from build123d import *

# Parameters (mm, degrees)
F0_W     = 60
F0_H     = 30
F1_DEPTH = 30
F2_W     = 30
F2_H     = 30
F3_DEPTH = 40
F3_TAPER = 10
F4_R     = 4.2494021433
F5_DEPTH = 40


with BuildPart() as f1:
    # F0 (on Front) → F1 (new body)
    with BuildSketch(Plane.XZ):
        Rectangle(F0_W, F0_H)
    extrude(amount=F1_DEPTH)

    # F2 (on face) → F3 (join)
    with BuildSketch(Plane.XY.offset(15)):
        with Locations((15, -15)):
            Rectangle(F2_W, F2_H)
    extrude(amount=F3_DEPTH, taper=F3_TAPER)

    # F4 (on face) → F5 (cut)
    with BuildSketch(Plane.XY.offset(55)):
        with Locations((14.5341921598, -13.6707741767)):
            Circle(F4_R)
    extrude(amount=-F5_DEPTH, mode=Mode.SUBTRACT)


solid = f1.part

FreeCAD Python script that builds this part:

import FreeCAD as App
import Part
import Sketcher

V = App.Vector
Q = App.Units.Quantity

doc = App.newDocument("Part")
params = doc.addObject("Spreadsheet::Sheet", "Params")
for row, (alias, value) in enumerate([
    ("sketch1_width", "60 mm"),
    ("sketch1_height", "30 mm"),
    ("pad1_length", "30 mm"),
    ("sketch2_width", "30 mm"),
    ("pad2_length", "40 mm"),
    ("pad2_taper", "-10 deg"),
    ("pocket1_length", "40 mm"),
], start=1):
    params.set(f"A{row}", alias)
    params.set(f"B{row}", "=" + value)
    params.setAlias(f"B{row}", alias)

body = doc.addObject("PartDesign::Body", "Body")

# Sketch on XZ plane
sketch1 = body.newObject("Sketcher::SketchObject", "Sketch")
sketch1.AttachmentSupport = (doc.getObject("XZ_Plane"), [""])
sketch1.MapMode = "FlatFace"
sketch1.addGeometry([
    Part.LineSegment(V(-30, 15, 0), V(-30, -15, 0)),
    Part.LineSegment(V(-30, -15, 0), V(30, -15, 0)),
    Part.LineSegment(V(30, -15, 0), V(30, 15, 0)),
    Part.LineSegment(V(30, 15, 0), V(-30, 15, 0)),
], False)
sketch1.addConstraint([
    Sketcher.Constraint("Coincident", 0, 2, 1, 1),
    Sketcher.Constraint("Coincident", 1, 2, 2, 1),
    Sketcher.Constraint("Coincident", 2, 2, 3, 1),
    Sketcher.Constraint("Coincident", 3, 2, 0, 1),
    Sketcher.Constraint("Vertical", 0),
    Sketcher.Constraint("Horizontal", 1),
    Sketcher.Constraint("Vertical", 2),
    Sketcher.Constraint("Horizontal", 3),
    Sketcher.Constraint("Symmetric", 0, 2, 2, 2, -1, 1),
    Sketcher.Constraint("DistanceX", 1, 1, 1, 2, Q("60 mm")),
    Sketcher.Constraint("DistanceY", 0, 2, 0, 1, Q("30 mm")),
])
sketch1.setExpression("Constraints[9]", "Params.sketch1_width")
sketch1.setExpression("Constraints[10]", "Params.sketch1_height")
pad1 = body.newObject("PartDesign::Pad", "Pad")
pad1.Profile = sketch1
pad1.setExpression("Length", "Params.pad1_length")

# Sketch on XY plane
sketch2 = body.newObject("Sketcher::SketchObject", "Sketch001")
sketch2.AttachmentSupport = (doc.getObject("XY_Plane"), [""])
sketch2.MapMode = "FlatFace"
sketch2.AttachmentOffset = App.Placement(V(0, 0, 15), App.Rotation())
sketch2.addGeometry([
    Part.LineSegment(V(0, 0, 0), V(0, -30, 0)),
    Part.LineSegment(V(0, -30, 0), V(30, -30, 0)),
    Part.LineSegment(V(30, -30, 0), V(30, 0, 0)),
    Part.LineSegment(V(30, 0, 0), V(0, 0, 0)),
], False)
sketch2.addConstraint([
    Sketcher.Constraint("Coincident", 0, 2, 1, 1),
    Sketcher.Constraint("Coincident", 1, 2, 2, 1),
    Sketcher.Constraint("Coincident", 2, 2, 3, 1),
    Sketcher.Constraint("Coincident", 3, 2, 0, 1),
    Sketcher.Constraint("Vertical", 0),
    Sketcher.Constraint("Horizontal", 1),
    Sketcher.Constraint("Vertical", 2),
    Sketcher.Constraint("Horizontal", 3),
    Sketcher.Constraint("Coincident", 3, 2, -1, 1),
    Sketcher.Constraint("Equal", 3, 0),
    Sketcher.Constraint("DistanceX", 1, 1, 1, 2, Q("30 mm")),
])
sketch2.setExpression("Constraints[10]", "Params.sketch2_width")
pad2 = body.newObject("PartDesign::Pad", "Pad001")
pad2.Profile = sketch2
pad2.setExpression("Length", "Params.pad2_length")
pad2.setExpression("TaperAngle", "Params.pad2_taper")

# Sketch on XY plane
sketch3 = body.newObject("Sketcher::SketchObject", "Sketch002")
sketch3.AttachmentSupport = (doc.getObject("XY_Plane"), [""])
sketch3.MapMode = "FlatFace"
sketch3.AttachmentOffset = App.Placement(V(0, 0, 55), App.Rotation())
sketch3.addGeometry(Part.Circle(V(14.534192, -13.670774, 0), V(0, 0, 1), 4.249402), False)
sketch3.addConstraint([
    Sketcher.Constraint("Diameter", 0, Q("8.498804 mm")),
    Sketcher.Constraint("DistanceX", -1, 1, 0, 3, Q("14.534192 mm")),
    Sketcher.Constraint("DistanceY", 0, 3, -1, 1, Q("13.670774 mm")),
])
pocket1 = body.newObject("PartDesign::Pocket", "Pocket")
pocket1.Profile = sketch3
pocket1.setExpression("Length", "Params.pocket1_length")

doc.recompute()
